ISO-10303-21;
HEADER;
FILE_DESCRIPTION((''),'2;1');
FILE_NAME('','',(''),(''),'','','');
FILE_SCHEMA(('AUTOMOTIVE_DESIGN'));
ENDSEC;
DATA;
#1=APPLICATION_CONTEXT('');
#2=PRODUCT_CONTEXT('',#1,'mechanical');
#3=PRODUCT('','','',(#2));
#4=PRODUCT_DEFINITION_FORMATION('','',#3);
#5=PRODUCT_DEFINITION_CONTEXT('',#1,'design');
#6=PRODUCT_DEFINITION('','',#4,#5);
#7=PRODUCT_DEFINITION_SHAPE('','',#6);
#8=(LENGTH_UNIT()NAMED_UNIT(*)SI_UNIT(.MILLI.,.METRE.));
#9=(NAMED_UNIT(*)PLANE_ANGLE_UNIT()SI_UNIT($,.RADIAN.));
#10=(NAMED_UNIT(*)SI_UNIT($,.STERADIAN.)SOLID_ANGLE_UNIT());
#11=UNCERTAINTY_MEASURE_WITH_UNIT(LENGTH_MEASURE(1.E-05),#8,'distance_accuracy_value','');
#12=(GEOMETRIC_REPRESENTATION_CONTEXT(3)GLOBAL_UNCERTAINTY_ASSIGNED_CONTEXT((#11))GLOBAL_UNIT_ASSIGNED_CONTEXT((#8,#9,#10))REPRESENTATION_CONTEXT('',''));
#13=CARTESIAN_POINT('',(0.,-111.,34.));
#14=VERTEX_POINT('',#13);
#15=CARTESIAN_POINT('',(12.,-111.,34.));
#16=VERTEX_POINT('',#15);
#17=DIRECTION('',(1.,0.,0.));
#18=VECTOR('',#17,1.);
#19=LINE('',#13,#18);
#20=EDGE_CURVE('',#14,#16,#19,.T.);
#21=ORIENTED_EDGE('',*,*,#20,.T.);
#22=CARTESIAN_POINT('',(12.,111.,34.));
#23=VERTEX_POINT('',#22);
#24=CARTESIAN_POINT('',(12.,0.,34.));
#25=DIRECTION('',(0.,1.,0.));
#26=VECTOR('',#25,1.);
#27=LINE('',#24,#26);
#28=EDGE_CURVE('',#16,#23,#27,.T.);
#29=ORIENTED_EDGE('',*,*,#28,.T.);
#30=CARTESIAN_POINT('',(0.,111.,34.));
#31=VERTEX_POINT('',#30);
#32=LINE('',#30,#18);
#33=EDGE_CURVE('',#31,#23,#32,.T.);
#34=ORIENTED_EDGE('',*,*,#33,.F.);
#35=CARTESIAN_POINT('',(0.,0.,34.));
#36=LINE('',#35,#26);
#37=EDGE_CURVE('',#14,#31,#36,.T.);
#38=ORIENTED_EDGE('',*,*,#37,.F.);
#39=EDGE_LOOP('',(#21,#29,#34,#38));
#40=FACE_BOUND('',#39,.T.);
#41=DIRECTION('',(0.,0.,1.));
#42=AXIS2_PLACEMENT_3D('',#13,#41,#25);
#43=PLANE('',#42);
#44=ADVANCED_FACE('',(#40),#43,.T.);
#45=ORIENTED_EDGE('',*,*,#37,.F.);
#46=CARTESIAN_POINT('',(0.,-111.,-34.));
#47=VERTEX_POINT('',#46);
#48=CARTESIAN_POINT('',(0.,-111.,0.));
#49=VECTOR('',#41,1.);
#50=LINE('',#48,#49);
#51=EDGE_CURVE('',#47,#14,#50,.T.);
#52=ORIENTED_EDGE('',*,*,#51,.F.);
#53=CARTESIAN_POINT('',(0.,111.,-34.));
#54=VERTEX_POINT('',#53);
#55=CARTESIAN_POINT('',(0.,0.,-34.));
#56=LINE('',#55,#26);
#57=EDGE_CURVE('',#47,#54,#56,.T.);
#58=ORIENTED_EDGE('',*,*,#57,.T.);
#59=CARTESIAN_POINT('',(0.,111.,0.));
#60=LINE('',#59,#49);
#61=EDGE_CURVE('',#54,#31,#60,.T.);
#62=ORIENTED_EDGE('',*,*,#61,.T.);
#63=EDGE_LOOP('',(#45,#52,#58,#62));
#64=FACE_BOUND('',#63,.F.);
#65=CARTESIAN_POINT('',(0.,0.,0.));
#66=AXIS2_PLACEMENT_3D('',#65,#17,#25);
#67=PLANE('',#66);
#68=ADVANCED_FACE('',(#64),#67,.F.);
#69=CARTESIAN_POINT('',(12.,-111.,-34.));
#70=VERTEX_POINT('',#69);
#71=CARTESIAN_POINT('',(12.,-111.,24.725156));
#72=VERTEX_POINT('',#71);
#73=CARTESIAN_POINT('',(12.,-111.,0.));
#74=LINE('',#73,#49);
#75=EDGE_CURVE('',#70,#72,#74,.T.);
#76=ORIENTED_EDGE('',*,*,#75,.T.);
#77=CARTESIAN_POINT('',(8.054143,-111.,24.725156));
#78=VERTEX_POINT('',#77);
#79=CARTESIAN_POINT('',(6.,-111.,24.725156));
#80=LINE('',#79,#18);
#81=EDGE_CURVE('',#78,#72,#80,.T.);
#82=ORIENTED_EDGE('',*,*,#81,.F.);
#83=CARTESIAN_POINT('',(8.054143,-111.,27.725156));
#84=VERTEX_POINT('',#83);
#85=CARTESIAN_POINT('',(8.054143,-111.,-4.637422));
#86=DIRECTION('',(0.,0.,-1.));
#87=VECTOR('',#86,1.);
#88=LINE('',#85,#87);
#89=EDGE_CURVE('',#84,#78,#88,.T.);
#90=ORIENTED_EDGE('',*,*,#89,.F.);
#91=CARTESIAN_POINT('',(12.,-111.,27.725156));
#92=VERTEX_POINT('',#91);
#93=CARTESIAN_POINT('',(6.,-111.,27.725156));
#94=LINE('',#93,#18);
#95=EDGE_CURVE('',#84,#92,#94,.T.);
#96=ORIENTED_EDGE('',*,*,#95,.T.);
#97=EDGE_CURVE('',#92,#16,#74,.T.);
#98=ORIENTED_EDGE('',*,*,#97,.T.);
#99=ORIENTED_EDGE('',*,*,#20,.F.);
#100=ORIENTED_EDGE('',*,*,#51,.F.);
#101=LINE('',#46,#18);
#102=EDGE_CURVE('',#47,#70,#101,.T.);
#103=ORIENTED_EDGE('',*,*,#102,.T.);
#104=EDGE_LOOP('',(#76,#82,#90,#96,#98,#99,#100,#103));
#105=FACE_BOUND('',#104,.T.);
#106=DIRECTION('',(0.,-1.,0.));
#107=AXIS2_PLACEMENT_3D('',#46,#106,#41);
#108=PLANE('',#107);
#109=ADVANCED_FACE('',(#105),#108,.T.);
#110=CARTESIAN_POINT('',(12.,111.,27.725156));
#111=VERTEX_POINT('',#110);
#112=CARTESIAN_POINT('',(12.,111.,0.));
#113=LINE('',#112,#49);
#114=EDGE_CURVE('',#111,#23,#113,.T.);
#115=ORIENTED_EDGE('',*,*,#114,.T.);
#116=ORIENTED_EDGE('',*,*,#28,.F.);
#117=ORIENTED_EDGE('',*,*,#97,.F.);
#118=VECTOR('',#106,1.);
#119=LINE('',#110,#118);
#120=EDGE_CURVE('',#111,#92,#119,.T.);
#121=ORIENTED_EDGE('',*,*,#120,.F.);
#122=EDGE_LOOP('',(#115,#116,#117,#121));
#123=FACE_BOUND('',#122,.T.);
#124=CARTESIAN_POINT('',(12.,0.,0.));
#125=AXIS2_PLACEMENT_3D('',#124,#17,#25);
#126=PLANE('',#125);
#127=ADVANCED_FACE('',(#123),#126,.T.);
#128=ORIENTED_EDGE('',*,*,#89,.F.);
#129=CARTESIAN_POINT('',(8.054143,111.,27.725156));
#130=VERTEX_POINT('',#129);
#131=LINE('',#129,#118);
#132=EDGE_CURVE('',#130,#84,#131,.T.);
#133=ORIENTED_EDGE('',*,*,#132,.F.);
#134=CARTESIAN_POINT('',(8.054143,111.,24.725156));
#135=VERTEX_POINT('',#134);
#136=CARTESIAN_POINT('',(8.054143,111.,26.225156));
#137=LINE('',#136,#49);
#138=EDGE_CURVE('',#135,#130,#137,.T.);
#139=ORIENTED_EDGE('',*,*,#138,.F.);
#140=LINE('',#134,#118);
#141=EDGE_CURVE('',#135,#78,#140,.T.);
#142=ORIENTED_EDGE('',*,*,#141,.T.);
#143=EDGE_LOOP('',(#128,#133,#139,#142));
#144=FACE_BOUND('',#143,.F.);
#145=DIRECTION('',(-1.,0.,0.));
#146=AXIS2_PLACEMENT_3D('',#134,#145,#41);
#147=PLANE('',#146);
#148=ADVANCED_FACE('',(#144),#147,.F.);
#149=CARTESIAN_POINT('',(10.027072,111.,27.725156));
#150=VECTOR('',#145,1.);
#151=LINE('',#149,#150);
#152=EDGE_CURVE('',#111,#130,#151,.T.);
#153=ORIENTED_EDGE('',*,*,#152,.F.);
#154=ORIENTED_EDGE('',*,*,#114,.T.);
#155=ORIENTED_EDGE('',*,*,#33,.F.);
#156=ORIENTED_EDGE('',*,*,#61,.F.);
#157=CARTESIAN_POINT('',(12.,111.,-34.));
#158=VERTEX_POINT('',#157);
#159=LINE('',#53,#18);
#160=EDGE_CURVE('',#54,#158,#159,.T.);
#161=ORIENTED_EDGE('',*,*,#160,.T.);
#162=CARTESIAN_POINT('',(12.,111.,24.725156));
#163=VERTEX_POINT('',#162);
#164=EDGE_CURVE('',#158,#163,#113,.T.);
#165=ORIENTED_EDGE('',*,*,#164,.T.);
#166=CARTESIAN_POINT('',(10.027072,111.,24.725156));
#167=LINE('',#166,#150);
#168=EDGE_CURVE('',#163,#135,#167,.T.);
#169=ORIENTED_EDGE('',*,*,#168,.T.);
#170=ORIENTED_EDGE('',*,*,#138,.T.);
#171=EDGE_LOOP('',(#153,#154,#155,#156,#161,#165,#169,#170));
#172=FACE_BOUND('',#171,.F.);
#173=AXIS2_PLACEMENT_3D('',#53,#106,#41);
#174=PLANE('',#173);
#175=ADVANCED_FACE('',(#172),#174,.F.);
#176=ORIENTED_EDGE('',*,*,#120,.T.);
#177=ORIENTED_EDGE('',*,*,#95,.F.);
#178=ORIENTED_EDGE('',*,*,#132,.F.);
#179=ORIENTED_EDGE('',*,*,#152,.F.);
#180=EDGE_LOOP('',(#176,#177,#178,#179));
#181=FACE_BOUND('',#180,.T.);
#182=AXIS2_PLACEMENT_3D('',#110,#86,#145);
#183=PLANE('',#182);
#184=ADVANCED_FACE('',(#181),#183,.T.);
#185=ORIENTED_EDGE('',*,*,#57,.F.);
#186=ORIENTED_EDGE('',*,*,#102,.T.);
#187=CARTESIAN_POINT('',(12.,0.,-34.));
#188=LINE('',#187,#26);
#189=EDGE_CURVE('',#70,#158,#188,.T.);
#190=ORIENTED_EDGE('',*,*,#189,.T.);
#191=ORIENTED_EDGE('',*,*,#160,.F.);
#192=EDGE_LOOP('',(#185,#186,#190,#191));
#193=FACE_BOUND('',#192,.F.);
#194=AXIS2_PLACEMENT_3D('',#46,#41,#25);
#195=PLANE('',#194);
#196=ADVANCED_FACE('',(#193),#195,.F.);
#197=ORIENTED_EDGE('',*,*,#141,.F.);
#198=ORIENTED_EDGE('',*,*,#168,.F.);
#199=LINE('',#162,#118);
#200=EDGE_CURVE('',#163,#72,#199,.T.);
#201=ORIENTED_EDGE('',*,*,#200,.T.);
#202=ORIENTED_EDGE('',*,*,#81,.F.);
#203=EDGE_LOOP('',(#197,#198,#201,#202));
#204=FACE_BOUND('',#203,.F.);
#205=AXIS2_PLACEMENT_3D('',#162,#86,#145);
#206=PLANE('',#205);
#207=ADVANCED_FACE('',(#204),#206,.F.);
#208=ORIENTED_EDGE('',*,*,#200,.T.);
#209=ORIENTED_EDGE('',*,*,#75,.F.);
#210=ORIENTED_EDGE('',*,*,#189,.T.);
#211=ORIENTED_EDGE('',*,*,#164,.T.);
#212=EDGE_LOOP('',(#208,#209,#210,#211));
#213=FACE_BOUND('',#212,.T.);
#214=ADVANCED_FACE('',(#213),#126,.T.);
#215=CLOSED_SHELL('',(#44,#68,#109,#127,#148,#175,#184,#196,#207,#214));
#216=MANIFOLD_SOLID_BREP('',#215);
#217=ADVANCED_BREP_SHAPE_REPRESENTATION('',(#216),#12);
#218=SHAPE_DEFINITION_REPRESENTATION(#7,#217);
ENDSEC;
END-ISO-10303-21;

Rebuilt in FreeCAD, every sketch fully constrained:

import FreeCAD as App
import Part
import Sketcher


def add_polygon(sketch, points):
    """Adds a closed chain of lines whose ends are joined by coincident constraints."""
    first, n = sketch.GeometryCount, len(points)
    for a, b in zip(points, points[1:] + points[:1]):
        sketch.addGeometry(Part.LineSegment(App.Vector(*a, 0), App.Vector(*b, 0)), False)
    for i in range(n):
        sketch.addConstraint(Sketcher.Constraint("Coincident", first + i, 2, first + (i + 1) % n, 1))

doc = App.newDocument("Part")
body = doc.addObject("PartDesign::Body", "Body")

sketch1 = body.newObject("Sketcher::SketchObject", "Sketch")
sketch1.AttachmentSupport = (doc.getObject("YZ_Plane"), [""])
sketch1.MapMode = "FlatFace"
add_polygon(sketch1, [(-111, 34), (-111, -34), (111, -34), (111, 34)])
sketch1.addConstraint(Sketcher.Constraint("Vertical", 0))
sketch1.addConstraint(Sketcher.Constraint("Horizontal", 1))
sketch1.addConstraint(Sketcher.Constraint("Vertical", 2))
sketch1.addConstraint(Sketcher.Constraint("Horizontal", 3))
sketch1.addConstraint(Sketcher.Constraint("Symmetric", 0, 2, 2, 2, -1, 1))
sketch1.addConstraint(Sketcher.Constraint("DistanceX", 1, 1, 1, 2, 222.0))
sketch1.addConstraint(Sketcher.Constraint("DistanceY", 0, 2, 0, 1, 68.0))
pad1 = body.newObject("PartDesign::Pad", "Pad")
pad1.Profile = sketch1
pad1.Length = 12

sketch2 = body.newObject("Sketcher::SketchObject", "Sketch001")
sketch2.AttachmentSupport = (doc.getObject("XZ_Plane"), [""])
sketch2.MapMode = "FlatFace"
sketch2.AttachmentOffset = App.Placement(App.Vector(0, 0, -111), App.Rotation())
add_polygon(sketch2, [(12, 27.7), (12, 24.7), (8.1, 24.7), (8.1, 27.7)])
sketch2.addConstraint(Sketcher.Constraint("Vertical", 0))
sketch2.addConstraint(Sketcher.Constraint("Horizontal", 1))
sketch2.addConstraint(Sketcher.Constraint("Vertical", 2))
sketch2.addConstraint(Sketcher.Constraint("Horizontal", 3))
sketch2.addConstraint(Sketcher.Constraint("DistanceY", 0, 2, 0, 1, 3.0))
sketch2.addConstraint(Sketcher.Constraint("DistanceX", -1, 1, 0, 2, 12.0))
sketch2.addConstraint(Sketcher.Constraint("DistanceX", 1, 2, 1, 1, 3.945857))
sketch2.addConstraint(Sketcher.Constraint("DistanceY", -1, 1, 0, 2, 24.725156))
pocket1 = body.newObject("PartDesign::Pocket", "Pocket")
pocket1.Profile = sketch2
pocket1.Length = 300
pocket1.Reversed = True

doc.recompute()
